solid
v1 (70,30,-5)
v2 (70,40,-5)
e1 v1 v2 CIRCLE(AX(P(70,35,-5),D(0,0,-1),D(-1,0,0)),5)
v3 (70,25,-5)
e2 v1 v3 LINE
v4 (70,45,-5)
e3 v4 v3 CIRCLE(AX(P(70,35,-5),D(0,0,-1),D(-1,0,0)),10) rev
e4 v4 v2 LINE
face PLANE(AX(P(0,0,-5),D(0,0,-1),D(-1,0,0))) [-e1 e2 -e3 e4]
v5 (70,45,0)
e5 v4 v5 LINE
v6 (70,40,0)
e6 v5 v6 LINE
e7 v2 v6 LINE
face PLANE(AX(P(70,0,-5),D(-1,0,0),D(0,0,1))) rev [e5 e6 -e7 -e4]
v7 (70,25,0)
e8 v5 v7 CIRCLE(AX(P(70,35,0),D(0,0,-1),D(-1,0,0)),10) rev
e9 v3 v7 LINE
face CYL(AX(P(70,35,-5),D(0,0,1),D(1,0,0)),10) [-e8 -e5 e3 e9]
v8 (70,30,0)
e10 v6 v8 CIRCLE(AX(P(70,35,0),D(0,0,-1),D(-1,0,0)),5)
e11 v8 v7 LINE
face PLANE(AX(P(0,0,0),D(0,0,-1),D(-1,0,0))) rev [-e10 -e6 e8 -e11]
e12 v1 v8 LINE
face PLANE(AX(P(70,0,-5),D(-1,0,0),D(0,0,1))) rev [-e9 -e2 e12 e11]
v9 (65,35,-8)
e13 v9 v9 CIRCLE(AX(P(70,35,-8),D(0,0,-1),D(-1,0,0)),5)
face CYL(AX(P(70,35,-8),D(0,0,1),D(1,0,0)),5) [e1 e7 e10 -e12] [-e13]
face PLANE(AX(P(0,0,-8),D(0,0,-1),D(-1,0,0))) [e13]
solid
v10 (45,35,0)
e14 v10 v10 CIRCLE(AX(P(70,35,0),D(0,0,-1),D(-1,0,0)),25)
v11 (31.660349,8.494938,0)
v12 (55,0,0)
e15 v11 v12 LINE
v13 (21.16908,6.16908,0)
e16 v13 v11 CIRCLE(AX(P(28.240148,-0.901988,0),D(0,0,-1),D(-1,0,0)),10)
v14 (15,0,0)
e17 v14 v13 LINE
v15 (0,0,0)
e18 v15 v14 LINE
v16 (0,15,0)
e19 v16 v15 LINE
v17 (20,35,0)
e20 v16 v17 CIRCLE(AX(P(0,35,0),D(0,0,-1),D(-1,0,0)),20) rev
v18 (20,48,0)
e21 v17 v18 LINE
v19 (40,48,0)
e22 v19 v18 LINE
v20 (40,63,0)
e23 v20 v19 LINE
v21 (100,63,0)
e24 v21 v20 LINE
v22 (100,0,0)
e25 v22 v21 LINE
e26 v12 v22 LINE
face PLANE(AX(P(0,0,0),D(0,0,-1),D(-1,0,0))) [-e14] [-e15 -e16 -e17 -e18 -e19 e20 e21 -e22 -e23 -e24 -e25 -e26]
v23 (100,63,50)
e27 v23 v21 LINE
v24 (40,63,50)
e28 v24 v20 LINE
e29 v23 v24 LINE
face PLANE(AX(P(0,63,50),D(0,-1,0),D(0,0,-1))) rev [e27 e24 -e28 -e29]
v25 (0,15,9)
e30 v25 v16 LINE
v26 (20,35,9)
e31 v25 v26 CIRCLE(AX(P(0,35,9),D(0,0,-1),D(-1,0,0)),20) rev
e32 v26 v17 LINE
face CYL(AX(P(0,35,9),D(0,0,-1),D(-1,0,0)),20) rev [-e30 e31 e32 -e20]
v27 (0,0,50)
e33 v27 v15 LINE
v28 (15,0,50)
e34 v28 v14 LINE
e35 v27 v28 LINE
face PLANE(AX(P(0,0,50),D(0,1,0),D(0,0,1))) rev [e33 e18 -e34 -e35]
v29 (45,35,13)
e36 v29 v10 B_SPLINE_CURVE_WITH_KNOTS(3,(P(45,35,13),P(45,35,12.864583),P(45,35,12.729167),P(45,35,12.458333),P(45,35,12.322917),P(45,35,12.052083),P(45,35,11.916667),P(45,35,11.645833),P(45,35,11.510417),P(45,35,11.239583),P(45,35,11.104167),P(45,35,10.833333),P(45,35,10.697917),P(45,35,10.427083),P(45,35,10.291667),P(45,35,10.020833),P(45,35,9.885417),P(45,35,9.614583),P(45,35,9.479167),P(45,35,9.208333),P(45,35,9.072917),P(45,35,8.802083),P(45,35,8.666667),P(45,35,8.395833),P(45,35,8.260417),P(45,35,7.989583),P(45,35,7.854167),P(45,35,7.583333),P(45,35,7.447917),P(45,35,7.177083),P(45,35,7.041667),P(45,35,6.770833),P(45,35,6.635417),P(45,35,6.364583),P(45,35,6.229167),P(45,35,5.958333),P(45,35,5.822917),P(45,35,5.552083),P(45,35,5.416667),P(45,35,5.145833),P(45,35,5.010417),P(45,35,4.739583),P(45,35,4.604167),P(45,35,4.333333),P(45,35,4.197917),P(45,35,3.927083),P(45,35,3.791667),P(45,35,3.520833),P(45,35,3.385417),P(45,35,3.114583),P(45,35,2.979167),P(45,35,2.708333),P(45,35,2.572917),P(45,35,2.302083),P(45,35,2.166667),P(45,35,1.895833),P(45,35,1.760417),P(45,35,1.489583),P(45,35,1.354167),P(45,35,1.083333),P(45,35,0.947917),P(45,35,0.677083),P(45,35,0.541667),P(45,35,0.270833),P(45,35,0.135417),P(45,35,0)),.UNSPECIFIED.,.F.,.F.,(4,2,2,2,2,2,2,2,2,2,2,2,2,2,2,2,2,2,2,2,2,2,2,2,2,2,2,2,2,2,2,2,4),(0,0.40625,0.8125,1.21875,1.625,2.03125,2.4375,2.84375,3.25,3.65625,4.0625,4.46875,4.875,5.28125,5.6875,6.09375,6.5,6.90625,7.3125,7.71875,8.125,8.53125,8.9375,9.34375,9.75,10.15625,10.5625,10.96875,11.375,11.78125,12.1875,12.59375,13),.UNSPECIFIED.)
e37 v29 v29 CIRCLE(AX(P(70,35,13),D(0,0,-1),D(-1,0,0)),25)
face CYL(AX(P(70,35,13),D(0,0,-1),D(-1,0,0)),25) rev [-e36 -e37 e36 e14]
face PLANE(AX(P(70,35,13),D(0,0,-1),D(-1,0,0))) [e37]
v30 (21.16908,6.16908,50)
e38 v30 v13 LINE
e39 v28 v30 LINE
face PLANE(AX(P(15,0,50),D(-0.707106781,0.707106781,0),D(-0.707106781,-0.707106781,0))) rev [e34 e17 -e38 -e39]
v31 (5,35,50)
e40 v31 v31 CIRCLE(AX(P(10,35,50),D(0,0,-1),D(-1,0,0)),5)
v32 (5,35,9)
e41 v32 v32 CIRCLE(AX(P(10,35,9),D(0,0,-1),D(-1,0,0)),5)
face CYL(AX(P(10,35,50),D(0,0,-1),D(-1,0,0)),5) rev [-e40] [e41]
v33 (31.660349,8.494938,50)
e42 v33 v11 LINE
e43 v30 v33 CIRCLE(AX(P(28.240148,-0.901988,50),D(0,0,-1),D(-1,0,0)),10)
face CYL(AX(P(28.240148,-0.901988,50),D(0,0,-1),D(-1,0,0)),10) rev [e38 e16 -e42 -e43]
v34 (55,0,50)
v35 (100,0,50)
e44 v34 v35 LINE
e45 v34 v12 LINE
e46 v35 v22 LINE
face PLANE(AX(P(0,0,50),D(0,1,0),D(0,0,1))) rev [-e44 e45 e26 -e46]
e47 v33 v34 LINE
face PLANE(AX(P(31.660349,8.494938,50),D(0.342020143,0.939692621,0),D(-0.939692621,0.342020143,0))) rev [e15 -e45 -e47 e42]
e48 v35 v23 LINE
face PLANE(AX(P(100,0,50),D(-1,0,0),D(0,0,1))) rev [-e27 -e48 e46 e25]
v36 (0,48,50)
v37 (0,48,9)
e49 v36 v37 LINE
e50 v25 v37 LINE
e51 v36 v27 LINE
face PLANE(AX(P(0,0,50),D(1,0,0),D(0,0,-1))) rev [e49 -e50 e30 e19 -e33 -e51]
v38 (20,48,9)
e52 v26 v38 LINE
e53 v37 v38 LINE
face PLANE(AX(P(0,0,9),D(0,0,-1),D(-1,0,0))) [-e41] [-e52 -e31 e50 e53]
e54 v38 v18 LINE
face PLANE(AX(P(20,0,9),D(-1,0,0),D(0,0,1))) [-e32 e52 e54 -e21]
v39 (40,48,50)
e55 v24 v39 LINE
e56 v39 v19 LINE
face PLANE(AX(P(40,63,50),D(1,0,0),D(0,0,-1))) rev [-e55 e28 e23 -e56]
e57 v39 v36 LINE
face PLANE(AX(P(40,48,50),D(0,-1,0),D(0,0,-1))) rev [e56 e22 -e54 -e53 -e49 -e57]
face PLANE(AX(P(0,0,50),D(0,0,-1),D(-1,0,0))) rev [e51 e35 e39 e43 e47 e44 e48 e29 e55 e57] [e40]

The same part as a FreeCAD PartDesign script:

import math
import FreeCAD as App
import Part
import Sketcher

V = App.Vector
Q = App.Units.Quantity

doc = App.newDocument("Part")
body = doc.addObject("PartDesign::Body", "Body")

sketch1 = doc.addObject("Sketcher::SketchObject", "Sketch")
body.addObject(sketch1)
sketch1.AttachmentSupport = (doc.XY_Plane, [""])
sketch1.MapMode = "FlatFace"
sketch1.addGeometry([
    Part.LineSegment(V(0, 63, 0), V(0, 0, 0)),
    Part.LineSegment(V(0, 0, 0), V(100, 0, 0)),
    Part.LineSegment(V(100, 0, 0), V(100, 63, 0)),
    Part.LineSegment(V(100, 63, 0), V(0, 63, 0)),
], False)
sketch1.addConstraint([
    Sketcher.Constraint("Coincident", 0, 2, 1, 1),
    Sketcher.Constraint("Coincident", 1, 2, 2, 1),
    Sketcher.Constraint("Coincident", 2, 2, 3, 1),
    Sketcher.Constraint("Coincident", 3, 2, 0, 1),
    Sketcher.Constraint("Vertical", 0),
    Sketcher.Constraint("Horizontal", 1),
    Sketcher.Constraint("Vertical", 2),
    Sketcher.Constraint("Horizontal", 3),
    Sketcher.Constraint("Coincident", 0, 2, -1, 1),
    Sketcher.Constraint("DistanceX", 1, 1, 1, 2, 100.0),
    Sketcher.Constraint("DistanceY", 0, 2, 0, 1, 63.0),
])
pad1 = doc.addObject("PartDesign::Pad", "Pad")
body.addObject(pad1)
pad1.Profile = sketch1
pad1.Length = 50

sketch2 = doc.addObject("Sketcher::SketchObject", "Sketch001")
body.addObject(sketch2)
sketch2.AttachmentSupport = (doc.XY_Plane, [""])
sketch2.MapMode = "FlatFace"
sketch2.addGeometry([
    Part.LineSegment(V(40, 63, 0), V(40, 48, 0)),
    Part.LineSegment(V(40, 48, 0), V(0, 48, 0)),
    Part.LineSegment(V(0, 48, 0), V(0, 63, 0)),
    Part.LineSegment(V(0, 63, 0), V(40, 63, 0)),
], False)
sketch2.addConstraint([
    Sketcher.Constraint("Coincident", 0, 2, 1, 1),
    Sketcher.Constraint("Coincident", 1, 2, 2, 1),
    Sketcher.Constraint("Coincident", 2, 2, 3, 1),
    Sketcher.Constraint("Coincident", 3, 2, 0, 1),
    Sketcher.Constraint("Vertical", 0),
    Sketcher.Constraint("Horizontal", 1),
    Sketcher.Constraint("Vertical", 2),
    Sketcher.Constraint("Horizontal", 3),
    Sketcher.Constraint("PointOnObject", 1, 2, -2),
    Sketcher.Constraint("DistanceX", 1, 2, 1, 1, 40.0),
    Sketcher.Constraint("DistanceY", 0, 2, 0, 1, 15.0),
    Sketcher.Constraint("DistanceY", -1, 1, 0, 2, 48.0),
])
pocket1 = doc.addObject("PartDesign::Pocket", "Pocket")
body.addObject(pocket1)
pocket1.Profile = sketch2
pocket1.Type = "ThroughAll"
pocket1.Reversed = True

sketch3 = doc.addObject("Sketcher::SketchObject", "Sketch002")
body.addObject(sketch3)
sketch3.AttachmentSupport = (doc.XY_Plane, [""])
sketch3.MapMode = "FlatFace"
sketch3.addGeometry([
    Part.LineSegment(V(20, 48, 0), V(20, 35, 0)),
    Part.ArcOfCircle(Part.Circle(V(0, 35, 0), V(0, 0, 1), 20), math.radians(-90), math.radians(0)),
    Part.LineSegment(V(0, 15, 0), V(0, 48, 0)),
    Part.LineSegment(V(0, 48, 0), V(20, 48, 0)),
], False)
sketch3.addConstraint([
    Sketcher.Constraint("Tangent", 0, 2, 1, 2),
    Sketcher.Constraint("Coincident", 1, 1, 2, 1),
    Sketcher.Constraint("Coincident", 2, 2, 3, 1),
    Sketcher.Constraint("Coincident", 3, 2, 0, 1),
    Sketcher.Constraint("Vertical", 0),
    Sketcher.Constraint("Vertical", 2),
    Sketcher.Constraint("Horizontal", 3),
    Sketcher.Constraint("PointOnObject", 1, 3, -2),
    Sketcher.Constraint("PointOnObject", 1, 1, -2),
    Sketcher.Constraint("Radius", 1, 20.0),
    Sketcher.Constraint("DistanceY", 0, 2, 0, 1, 13.0),
    Sketcher.Constraint("DistanceY", -1, 1, 1, 3, 35.0),
])
pocket2 = doc.addObject("PartDesign::Pocket", "Pocket001")
body.addObject(pocket2)
pocket2.Profile = sketch3
pocket2.Length = 9
pocket2.Reversed = True

sketch4 = doc.addObject("Sketcher::SketchObject", "Sketch003")
body.addObject(sketch4)
sketch4.AttachmentSupport = (doc.XY_Plane, [""])
sketch4.MapMode = "FlatFace"
sketch4.addGeometry(Part.Circle(V(10, 35, 0), V(0, 0, 1), 5), False)
sketch4.addConstraint([
    Sketcher.Constraint("Diameter", 0, 10.0),
    Sketcher.Constraint("DistanceX", -1, 1, 0, 3, 10.0),
    Sketcher.Constraint("DistanceY", -1, 1, 0, 3, 35.0),
])
pocket3 = doc.addObject("PartDesign::Pocket", "Pocket002")
body.addObject(pocket3)
pocket3.Profile = sketch4
pocket3.Type = "ThroughAll"
pocket3.Reversed = True

sketch5 = doc.addObject("Sketcher::SketchObject", "Sketch004")
body.addObject(sketch5)
sketch5.AttachmentSupport = (doc.XY_Plane, [""])
sketch5.MapMode = "FlatFace"
sketch5.addGeometry([
    Part.LineSegment(V(15, 0, 0), V(21.16908, 6.16908, 0)),
    Part.ArcOfCircle(Part.Circle(V(28.240148, -0.901988, 0), V(0, 0, 1), 10), math.radians(70), math.radians(135)),
    Part.LineSegment(V(31.660349, 8.494938, 0), V(55, 0, 0)),
    Part.LineSegment(V(55, 0, 0), V(15, 0, 0)),
], False)
sketch5.addConstraint([
    Sketcher.Constraint("Tangent", 0, 2, 1, 2),
    Sketcher.Constraint("Tangent", 1, 1, 2, 1),
    Sketcher.Constraint("Coincident", 2, 2, 3, 1),
    Sketcher.Constraint("Coincident", 3, 2, 0, 1),
    Sketcher.Constraint("Horizontal", 3),
    Sketcher.Constraint("PointOnObject", 2, 2, -1),
    Sketcher.Constraint("Radius", 1, 10.0),
    Sketcher.Constraint("DistanceX", 3, 2, 3, 1, 40.0),
    Sketcher.Constraint("Angle", 0, Q("45 deg")),
    Sketcher.Constraint("Angle", 2, Q("-20 deg")),
    Sketcher.Constraint("DistanceX", -1, 1, 2, 2, 55.0),
])
pocket4 = doc.addObject("PartDesign::Pocket", "Pocket003")
body.addObject(pocket4)
pocket4.Profile = sketch5
pocket4.Type = "ThroughAll"
pocket4.Reversed = True

sketch6 = doc.addObject("Sketcher::SketchObject", "Sketch005")
body.addObject(sketch6)
sketch6.AttachmentSupport = (doc.XY_Plane, [""])
sketch6.MapMode = "FlatFace"
sketch6.addGeometry(Part.Circle(V(70, 35, 0), V(0, 0, 1), 25), False)
sketch6.addConstraint([
    Sketcher.Constraint("Diameter", 0, 50.0),
    Sketcher.Constraint("DistanceX", -1, 1, 0, 3, 70.0),
    Sketcher.Constraint("DistanceY", -1, 1, 0, 3, 35.0),
])
pocket5 = doc.addObject("PartDesign::Pocket", "Pocket004")
body.addObject(pocket5)
pocket5.Profile = sketch6
pocket5.Length = 13
pocket5.Reversed = True
body2 = doc.addObject("PartDesign::Body", "Body001")

sketch7 = doc.addObject("Sketcher::SketchObject", "Sketch006")
body2.addObject(sketch7)
sketch7.AttachmentSupport = (doc.getObject("XY_Plane001"), [""])
sketch7.MapMode = "FlatFace"
sketch7.addGeometry([
    Part.ArcOfCircle(Part.Circle(V(70, 35, 0), V(0, 0, 1), 10), math.radians(90), math.radians(270)),
    Part.LineSegment(V(70, 45, 0), V(70, 40, 0)),
    Part.ArcOfCircle(Part.Circle(V(70, 35, 0), V(0, 0, 1), 5), math.radians(90), math.radians(180)),
    Part.ArcOfCircle(Part.Circle(V(70, 35, 0), V(0, 0, 1), 5), math.radians(180), math.radians(270)),
    Part.LineSegment(V(70, 30, 0), V(70, 25, 0)),
], False)
sketch7.addConstraint([
    Sketcher.Constraint("Coincident", 0, 1, 1, 1),
    Sketcher.Constraint("Coincident", 1, 2, 2, 1),
    Sketcher.Constraint("Tangent", 2, 2, 3, 1),
    Sketcher.Constraint("Coincident", 3, 2, 4, 1),
    Sketcher.Constraint("Coincident", 4, 2, 0, 2),
    Sketcher.Constraint("Vertical", 1),
    Sketcher.Constraint("Vertical", 4),
    Sketcher.Constraint("Coincident", 2, 3, 0, 3),
    Sketcher.Constraint("Equal", 2, 3),
    Sketcher.Constraint("Horizontal", 3, 3, 2, 2),
    Sketcher.Constraint("Vertical", 3, 3, 0, 1),
    Sketcher.Constraint("Vertical", 1, 2, 3, 2),
    Sketcher.Constraint("Radius", 0, 10.0),
    Sketcher.Constraint("Radius", 2, 5.0),
    Sketcher.Constraint("DistanceX", -1, 1, 0, 3, 70.0),
    Sketcher.Constraint("DistanceY", -1, 1, 0, 3, 35.0),
])
pad2 = doc.addObject("PartDesign::Pad", "Pad001")
body2.addObject(pad2)
pad2.Profile = sketch7
pad2.Length = 5
pad2.Reversed = True

sketch8 = doc.addObject("Sketcher::SketchObject", "Sketch007")
body2.addObject(sketch8)
sketch8.AttachmentSupport = (doc.getObject("XY_Plane001"), [""])
sketch8.MapMode = "FlatFace"
sketch8.addGeometry(Part.Circle(V(70, 35, 0), V(0, 0, 1), 5), False)
sketch8.addConstraint([
    Sketcher.Constraint("Diameter", 0, 10.0),
    Sketcher.Constraint("DistanceX", -1, 1, 0, 3, 70.0),
    Sketcher.Constraint("DistanceY", -1, 1, 0, 3, 35.0),
])
pad3 = doc.addObject("PartDesign::Pad", "Pad002")
body2.addObject(pad3)
pad3.Profile = sketch8
pad3.Length = 8
pad3.Reversed = True

doc.recompute()
